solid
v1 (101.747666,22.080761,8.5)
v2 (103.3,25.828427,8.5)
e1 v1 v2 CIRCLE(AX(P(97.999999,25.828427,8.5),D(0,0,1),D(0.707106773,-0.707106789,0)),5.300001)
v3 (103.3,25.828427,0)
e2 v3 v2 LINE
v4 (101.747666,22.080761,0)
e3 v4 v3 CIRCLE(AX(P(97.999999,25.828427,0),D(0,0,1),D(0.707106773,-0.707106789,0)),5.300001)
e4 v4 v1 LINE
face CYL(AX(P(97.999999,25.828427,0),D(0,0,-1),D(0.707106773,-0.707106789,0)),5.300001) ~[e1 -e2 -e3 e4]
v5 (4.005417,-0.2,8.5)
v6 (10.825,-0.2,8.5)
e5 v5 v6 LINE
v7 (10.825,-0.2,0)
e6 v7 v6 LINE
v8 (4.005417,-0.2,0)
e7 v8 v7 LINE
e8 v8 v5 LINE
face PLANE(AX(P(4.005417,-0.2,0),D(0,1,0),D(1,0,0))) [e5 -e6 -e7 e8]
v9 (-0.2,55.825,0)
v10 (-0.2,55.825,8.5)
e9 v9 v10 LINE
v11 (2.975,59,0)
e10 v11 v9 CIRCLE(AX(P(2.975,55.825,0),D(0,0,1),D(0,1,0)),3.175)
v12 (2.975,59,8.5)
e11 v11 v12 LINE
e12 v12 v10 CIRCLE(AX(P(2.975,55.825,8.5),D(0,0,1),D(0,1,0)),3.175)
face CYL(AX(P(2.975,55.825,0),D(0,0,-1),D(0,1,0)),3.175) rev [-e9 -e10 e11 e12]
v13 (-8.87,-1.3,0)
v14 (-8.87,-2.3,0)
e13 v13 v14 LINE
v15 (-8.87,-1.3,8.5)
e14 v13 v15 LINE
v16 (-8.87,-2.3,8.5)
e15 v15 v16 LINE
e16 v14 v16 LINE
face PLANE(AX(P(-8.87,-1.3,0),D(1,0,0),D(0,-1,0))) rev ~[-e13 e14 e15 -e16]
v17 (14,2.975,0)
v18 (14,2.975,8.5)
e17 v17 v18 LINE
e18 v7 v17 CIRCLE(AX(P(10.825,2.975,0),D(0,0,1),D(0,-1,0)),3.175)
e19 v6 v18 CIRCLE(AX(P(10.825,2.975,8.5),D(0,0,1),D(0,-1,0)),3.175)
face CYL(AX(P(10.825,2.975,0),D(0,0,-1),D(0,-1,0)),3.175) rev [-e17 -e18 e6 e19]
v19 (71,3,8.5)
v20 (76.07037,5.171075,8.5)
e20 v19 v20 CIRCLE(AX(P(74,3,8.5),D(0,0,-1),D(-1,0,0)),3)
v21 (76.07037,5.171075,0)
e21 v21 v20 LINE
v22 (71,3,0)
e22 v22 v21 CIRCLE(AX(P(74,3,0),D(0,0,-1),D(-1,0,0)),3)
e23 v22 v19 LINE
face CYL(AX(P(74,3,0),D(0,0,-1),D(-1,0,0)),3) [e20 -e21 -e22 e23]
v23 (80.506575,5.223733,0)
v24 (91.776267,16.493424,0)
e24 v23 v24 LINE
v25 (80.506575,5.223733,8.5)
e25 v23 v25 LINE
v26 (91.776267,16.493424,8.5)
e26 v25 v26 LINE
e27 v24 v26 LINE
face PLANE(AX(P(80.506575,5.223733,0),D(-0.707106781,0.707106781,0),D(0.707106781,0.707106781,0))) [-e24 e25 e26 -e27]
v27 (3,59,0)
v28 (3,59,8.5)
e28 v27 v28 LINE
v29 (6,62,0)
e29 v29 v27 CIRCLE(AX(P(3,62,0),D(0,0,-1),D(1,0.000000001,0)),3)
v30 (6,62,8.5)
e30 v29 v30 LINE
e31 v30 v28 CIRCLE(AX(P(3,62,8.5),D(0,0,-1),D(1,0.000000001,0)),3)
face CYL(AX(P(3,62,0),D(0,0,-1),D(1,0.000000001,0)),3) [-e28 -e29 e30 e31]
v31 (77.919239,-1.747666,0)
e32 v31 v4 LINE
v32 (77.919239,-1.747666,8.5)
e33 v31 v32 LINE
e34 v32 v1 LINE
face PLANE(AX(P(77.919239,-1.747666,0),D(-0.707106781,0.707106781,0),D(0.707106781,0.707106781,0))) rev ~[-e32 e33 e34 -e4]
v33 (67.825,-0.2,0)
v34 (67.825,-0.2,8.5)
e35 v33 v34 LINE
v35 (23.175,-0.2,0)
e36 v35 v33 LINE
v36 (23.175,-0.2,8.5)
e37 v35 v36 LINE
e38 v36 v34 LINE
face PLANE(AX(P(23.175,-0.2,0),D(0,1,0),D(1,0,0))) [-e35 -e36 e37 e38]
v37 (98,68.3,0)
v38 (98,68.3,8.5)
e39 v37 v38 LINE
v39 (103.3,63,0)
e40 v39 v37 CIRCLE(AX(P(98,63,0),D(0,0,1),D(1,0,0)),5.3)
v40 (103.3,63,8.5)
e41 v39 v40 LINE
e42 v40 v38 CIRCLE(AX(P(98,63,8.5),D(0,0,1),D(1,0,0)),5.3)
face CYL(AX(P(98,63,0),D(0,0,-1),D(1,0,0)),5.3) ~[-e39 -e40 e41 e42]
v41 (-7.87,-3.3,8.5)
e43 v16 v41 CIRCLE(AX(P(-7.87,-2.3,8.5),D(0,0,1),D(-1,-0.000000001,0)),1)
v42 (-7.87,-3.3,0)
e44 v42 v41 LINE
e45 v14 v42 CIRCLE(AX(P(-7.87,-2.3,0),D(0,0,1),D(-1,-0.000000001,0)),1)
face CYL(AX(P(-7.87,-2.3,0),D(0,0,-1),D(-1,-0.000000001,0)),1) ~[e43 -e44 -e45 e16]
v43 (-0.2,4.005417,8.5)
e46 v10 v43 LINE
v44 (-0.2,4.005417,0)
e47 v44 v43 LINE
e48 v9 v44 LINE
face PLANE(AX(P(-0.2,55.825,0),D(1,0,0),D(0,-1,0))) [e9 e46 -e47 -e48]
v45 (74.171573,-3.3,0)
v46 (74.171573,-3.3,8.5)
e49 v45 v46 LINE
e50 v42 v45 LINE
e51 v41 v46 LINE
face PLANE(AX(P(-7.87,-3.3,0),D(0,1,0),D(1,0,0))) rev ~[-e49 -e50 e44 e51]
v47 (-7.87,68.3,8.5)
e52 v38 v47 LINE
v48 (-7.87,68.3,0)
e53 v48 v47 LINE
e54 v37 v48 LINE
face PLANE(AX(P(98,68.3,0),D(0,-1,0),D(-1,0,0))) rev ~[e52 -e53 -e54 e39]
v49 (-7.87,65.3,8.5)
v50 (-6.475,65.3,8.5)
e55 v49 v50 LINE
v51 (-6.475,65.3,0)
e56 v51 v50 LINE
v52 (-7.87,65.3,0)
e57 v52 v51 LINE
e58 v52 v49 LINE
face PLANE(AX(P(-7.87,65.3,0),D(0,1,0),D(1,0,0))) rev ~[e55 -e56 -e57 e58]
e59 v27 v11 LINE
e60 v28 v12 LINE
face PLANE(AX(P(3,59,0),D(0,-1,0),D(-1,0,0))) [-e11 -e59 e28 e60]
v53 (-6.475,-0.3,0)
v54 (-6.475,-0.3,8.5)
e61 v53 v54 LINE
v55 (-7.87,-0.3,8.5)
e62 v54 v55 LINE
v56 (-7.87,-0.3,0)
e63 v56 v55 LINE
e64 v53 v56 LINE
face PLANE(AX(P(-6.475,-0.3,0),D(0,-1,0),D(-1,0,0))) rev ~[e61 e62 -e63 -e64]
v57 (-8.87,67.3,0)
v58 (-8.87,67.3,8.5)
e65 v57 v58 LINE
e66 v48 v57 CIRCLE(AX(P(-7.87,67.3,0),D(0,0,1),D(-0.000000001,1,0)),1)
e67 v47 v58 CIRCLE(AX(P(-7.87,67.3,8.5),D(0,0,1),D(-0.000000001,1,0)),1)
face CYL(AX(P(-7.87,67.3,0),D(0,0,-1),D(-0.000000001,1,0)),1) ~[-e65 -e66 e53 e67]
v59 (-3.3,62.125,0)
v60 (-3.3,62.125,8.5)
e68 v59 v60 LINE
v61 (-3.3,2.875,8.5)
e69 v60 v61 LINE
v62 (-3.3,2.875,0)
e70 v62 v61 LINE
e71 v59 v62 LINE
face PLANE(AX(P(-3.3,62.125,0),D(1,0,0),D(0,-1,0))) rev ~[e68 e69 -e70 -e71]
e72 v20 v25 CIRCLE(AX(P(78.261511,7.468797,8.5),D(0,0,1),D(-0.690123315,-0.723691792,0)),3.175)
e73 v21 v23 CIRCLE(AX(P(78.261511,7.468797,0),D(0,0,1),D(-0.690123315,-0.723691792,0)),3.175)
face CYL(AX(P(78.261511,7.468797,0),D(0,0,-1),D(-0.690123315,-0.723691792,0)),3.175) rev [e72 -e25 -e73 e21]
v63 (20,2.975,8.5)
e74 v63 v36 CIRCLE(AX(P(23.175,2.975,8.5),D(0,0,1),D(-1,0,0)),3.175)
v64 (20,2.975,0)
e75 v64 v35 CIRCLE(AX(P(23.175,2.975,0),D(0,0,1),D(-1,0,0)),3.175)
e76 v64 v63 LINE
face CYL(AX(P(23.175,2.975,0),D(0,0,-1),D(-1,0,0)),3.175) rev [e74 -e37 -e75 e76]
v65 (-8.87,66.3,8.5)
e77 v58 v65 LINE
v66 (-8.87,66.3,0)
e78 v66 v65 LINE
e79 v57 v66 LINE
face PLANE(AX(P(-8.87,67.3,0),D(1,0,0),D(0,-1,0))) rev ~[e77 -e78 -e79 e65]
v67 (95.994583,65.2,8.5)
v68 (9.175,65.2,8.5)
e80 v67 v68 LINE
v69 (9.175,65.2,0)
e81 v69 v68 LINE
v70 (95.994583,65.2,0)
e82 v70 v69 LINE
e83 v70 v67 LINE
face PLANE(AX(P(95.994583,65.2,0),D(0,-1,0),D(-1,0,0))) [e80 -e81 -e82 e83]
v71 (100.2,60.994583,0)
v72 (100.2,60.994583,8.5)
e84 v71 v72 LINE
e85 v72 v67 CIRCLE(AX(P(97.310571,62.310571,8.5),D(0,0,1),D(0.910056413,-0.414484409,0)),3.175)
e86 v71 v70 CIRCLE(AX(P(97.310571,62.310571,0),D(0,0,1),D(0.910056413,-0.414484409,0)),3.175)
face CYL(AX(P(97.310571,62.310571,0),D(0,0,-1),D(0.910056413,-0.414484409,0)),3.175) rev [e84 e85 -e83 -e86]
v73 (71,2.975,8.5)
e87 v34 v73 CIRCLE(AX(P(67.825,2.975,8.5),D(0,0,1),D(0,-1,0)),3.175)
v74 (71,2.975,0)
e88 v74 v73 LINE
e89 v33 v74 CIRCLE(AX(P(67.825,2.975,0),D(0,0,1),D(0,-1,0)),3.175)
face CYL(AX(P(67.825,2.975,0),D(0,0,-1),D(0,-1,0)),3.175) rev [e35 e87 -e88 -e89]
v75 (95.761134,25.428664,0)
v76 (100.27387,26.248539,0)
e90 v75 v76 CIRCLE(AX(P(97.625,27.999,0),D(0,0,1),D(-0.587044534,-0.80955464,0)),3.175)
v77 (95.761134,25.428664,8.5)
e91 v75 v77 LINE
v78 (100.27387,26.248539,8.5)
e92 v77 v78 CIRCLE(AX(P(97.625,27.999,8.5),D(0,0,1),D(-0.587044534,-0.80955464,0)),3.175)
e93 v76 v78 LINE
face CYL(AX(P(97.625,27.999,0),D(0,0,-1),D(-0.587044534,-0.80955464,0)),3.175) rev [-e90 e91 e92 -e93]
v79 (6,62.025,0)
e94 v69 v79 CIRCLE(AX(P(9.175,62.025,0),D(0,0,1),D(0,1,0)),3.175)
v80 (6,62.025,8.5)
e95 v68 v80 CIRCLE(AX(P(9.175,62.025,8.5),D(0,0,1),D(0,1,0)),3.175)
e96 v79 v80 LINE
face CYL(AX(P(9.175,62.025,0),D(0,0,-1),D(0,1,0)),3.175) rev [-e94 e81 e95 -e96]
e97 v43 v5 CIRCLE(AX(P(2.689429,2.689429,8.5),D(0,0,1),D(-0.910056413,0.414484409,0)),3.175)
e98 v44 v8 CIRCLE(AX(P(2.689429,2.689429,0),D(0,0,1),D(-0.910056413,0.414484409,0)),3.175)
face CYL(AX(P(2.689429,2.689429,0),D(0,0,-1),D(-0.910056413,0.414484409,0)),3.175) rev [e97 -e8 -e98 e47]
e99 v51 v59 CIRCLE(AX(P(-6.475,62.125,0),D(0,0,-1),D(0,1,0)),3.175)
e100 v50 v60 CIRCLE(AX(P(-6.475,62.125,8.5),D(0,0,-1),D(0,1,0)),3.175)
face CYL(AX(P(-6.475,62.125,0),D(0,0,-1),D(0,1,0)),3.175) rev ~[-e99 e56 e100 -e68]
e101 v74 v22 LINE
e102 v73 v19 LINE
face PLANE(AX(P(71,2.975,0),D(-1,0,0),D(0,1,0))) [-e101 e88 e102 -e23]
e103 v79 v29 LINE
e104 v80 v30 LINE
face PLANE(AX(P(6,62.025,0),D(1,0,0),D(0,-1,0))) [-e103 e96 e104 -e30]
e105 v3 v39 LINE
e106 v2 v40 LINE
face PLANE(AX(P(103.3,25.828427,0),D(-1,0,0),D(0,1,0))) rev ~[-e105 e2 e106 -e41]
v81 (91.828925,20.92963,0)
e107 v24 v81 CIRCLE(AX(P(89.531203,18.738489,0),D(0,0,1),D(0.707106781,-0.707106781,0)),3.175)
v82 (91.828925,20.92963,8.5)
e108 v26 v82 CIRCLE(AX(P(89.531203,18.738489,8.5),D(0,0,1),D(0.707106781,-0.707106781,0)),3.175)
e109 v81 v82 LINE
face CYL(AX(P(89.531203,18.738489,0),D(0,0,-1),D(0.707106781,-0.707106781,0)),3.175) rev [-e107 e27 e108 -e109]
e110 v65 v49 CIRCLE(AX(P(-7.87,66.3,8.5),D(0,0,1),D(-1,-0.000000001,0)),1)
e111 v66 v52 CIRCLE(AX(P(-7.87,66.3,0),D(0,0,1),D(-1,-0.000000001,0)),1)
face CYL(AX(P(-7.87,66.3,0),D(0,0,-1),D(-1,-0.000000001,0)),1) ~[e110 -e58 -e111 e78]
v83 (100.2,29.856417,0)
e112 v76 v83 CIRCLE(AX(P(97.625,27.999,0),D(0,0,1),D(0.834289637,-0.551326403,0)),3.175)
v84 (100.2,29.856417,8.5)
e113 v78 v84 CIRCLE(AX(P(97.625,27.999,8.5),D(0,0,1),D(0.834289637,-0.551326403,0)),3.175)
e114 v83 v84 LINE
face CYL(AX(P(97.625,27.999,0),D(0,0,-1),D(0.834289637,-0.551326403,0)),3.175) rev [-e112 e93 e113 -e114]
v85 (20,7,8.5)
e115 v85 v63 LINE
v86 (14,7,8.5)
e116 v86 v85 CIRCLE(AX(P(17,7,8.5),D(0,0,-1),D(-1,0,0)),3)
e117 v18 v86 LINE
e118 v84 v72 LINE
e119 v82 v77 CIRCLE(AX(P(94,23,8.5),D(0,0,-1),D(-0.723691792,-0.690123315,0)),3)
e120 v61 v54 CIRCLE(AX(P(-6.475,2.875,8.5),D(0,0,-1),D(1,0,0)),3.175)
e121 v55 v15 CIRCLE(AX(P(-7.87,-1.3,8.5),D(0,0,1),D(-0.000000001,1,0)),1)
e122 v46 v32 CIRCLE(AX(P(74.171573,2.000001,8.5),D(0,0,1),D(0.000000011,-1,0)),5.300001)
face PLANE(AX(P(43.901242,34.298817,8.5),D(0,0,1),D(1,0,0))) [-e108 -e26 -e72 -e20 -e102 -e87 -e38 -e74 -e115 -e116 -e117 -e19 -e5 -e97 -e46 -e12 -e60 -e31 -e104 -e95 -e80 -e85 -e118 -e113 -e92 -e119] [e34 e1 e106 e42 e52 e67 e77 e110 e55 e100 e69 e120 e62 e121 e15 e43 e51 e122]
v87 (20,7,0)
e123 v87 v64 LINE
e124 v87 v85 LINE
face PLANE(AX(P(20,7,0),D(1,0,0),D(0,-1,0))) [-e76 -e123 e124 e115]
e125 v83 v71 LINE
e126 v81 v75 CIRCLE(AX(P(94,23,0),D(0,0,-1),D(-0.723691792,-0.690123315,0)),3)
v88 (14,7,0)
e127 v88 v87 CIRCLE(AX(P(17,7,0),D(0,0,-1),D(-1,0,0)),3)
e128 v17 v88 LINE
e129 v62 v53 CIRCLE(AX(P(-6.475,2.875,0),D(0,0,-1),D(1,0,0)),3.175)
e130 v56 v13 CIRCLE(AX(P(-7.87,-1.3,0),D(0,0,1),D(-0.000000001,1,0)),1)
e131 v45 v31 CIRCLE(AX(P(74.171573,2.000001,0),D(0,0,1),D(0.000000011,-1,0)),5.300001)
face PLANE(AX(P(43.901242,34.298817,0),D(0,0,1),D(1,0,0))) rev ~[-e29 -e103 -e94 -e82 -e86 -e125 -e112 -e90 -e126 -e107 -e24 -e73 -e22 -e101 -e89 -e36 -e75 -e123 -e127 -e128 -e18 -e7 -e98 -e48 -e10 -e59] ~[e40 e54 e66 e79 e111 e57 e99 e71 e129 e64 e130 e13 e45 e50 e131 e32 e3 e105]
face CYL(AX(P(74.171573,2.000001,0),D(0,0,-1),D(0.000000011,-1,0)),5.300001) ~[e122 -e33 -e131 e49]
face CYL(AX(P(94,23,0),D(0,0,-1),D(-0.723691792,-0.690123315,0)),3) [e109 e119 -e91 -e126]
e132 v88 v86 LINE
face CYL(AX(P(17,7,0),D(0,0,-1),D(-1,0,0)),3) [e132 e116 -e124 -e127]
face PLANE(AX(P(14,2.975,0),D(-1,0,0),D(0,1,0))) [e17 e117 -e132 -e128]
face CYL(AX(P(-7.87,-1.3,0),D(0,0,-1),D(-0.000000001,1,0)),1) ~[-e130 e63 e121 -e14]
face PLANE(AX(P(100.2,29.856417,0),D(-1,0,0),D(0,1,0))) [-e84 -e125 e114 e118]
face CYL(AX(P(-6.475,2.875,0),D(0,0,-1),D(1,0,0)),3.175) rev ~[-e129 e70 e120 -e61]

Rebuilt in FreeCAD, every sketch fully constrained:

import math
import FreeCAD as App
import Part
import Sketcher

V = App.Vector
Q = App.Units.Quantity

doc = App.newDocument("Part")
body = doc.addObject("PartDesign::Body", "Body")

# Sketch on XY plane
sketch1 = body.newObject("Sketcher::SketchObject", "Sketch")
sketch1.AttachmentSupport = (doc.getObject("XY_Plane"), [""])
sketch1.MapMode = "FlatFace"
sketch1.addGeometry([
    Part.LineSegment(V(-8.87, -1.3, 0), V(-8.87, -2.3, 0)),  # 0
    Part.ArcOfCircle(Part.Circle(V(-7.87, -2.3, 0), V(0, 0, 1), 1), math.radians(-180), math.radians(-90)),  # 1
    Part.LineSegment(V(-7.87, -3.3, 0), V(74.172, -3.3, 0)),  # 2
    Part.ArcOfCircle(Part.Circle(V(74.172, 2, 0), V(0, 0, 1), 5.3), math.radians(-90), math.radians(-45)),  # 3
    Part.LineSegment(V(77.919, -1.748, 0), V(101.748, 22.081, 0)),  # 4
    Part.ArcOfCircle(Part.Circle(V(98, 25.828, 0), V(0, 0, 1), 5.3), math.radians(-45), math.radians(0)),  # 5
    Part.LineSegment(V(103.3, 25.828, 0), V(103.3, 63, 0)),  # 6
    Part.ArcOfCircle(Part.Circle(V(98, 63, 0), V(0, 0, 1), 5.3), math.radians(0), math.radians(90)),  # 7
    Part.LineSegment(V(98, 68.3, 0), V(-7.87, 68.3, 0)),  # 8
    Part.ArcOfCircle(Part.Circle(V(-7.87, 67.3, 0), V(0, 0, 1), 1), math.radians(90), math.radians(180)),  # 9
    Part.LineSegment(V(-8.87, 67.3, 0), V(-8.87, 66.3, 0)),  # 10
    Part.ArcOfCircle(Part.Circle(V(-7.87, 66.3, 0), V(0, 0, 1), 1), math.radians(-180), math.radians(-90)),  # 11
    Part.LineSegment(V(-7.87, 65.3, 0), V(-6.475, 65.3, 0)),  # 12
    Part.ArcOfCircle(Part.Circle(V(-6.475, 62.125, 0), V(0, 0, 1), 3.175), math.radians(0), math.radians(90)),  # 13
    Part.LineSegment(V(-3.3, 62.125, 0), V(-3.3, 2.875, 0)),  # 14
    Part.ArcOfCircle(Part.Circle(V(-6.475, 2.875, 0), V(0, 0, 1), 3.175), math.radians(-90), math.radians(0)),  # 15
    Part.LineSegment(V(-6.475, -0.3, 0), V(-7.87, -0.3, 0)),  # 16
    Part.ArcOfCircle(Part.Circle(V(-7.87, -1.3, 0), V(0, 0, 1), 1), math.radians(90), math.radians(180)),  # 17
    Part.LineSegment(V(100.2, 60.995, 0), V(100.2, 29.856, 0)),  # 18
    Part.ArcOfCircle(Part.Circle(V(97.625, 27.999, 0), V(0, 0, 1), 3.175), math.radians(-33), math.radians(36)),  # 19
    Part.ArcOfCircle(Part.Circle(V(97.625, 27.999, 0), V(0, 0, 1), 3.175), math.radians(-126), math.radians(-33)),  # 20
    Part.ArcOfCircle(Part.Circle(V(94, 23, 0), V(0, 0, 1), 3), math.radians(54), math.radians(224)),  # 21
    Part.ArcOfCircle(Part.Circle(V(89.531, 18.738, 0), V(0, 0, 1), 3.175), math.radians(-45), math.radians(44)),  # 22
    Part.LineSegment(V(91.776, 16.493, 0), V(80.507, 5.224, 0)),  # 23
    Part.ArcOfCircle(Part.Circle(V(78.262, 7.469, 0), V(0, 0, 1), 3.175), math.radians(-134), math.radians(-45)),  # 24
    Part.ArcOfCircle(Part.Circle(V(74, 3, 0), V(0, 0, 1), 3), math.radians(46), math.radians(180)),  # 25
    Part.LineSegment(V(71, 3, 0), V(71, 2.975, 0)),  # 26
    Part.ArcOfCircle(Part.Circle(V(67.825, 2.975, 0), V(0, 0, 1), 3.175), math.radians(-90), math.radians(0)),  # 27
    Part.LineSegment(V(67.825, -0.2, 0), V(23.175, -0.2, 0)),  # 28
    Part.ArcOfCircle(Part.Circle(V(23.175, 2.975, 0), V(0, 0, 1), 3.175), math.radians(-180), math.radians(-90)),  # 29
    Part.LineSegment(V(20, 2.975, 0), V(20, 7, 0)),  # 30
    Part.ArcOfCircle(Part.Circle(V(17, 7, 0), V(0, 0, 1), 3), math.radians(0), math.radians(180)),  # 31
    Part.LineSegment(V(14, 7, 0), V(14, 2.975, 0)),  # 32
    Part.ArcOfCircle(Part.Circle(V(10.825, 2.975, 0), V(0, 0, 1), 3.175), math.radians(-90), math.radians(0)),  # 33
    Part.LineSegment(V(10.825, -0.2, 0), V(4.005, -0.2, 0)),  # 34
    Part.ArcOfCircle(Part.Circle(V(2.689, 2.689, 0), V(0, 0, 1), 3.175), math.radians(156), math.radians(294)),  # 35
    Part.LineSegment(V(-0.2, 4.005, 0), V(-0.2, 55.825, 0)),  # 36
    Part.ArcOfCircle(Part.Circle(V(2.975, 55.825, 0), V(0, 0, 1), 3.175), math.radians(90), math.radians(180)),  # 37
    Part.LineSegment(V(2.975, 59, 0), V(3, 59, 0)),  # 38
    Part.ArcOfCircle(Part.Circle(V(3, 62, 0), V(0, 0, 1), 3), math.radians(-90), math.radians(0)),  # 39
    Part.LineSegment(V(6, 62, 0), V(6, 62.025, 0)),  # 40
    Part.ArcOfCircle(Part.Circle(V(9.175, 62.025, 0), V(0, 0, 1), 3.175), math.radians(90), math.radians(180)),  # 41
    Part.LineSegment(V(9.175, 65.2, 0), V(95.995, 65.2, 0)),  # 42
    Part.ArcOfCircle(Part.Circle(V(97.311, 62.311, 0), V(0, 0, 1), 3.175), math.radians(-24), math.radians(114)),  # 43
], False)
sketch1.addConstraint([
    Sketcher.Constraint("Tangent", 0, 2, 1, 1),
    Sketcher.Constraint("Tangent", 1, 2, 2, 1),
    Sketcher.Constraint("Tangent", 2, 2, 3, 1),
    Sketcher.Constraint("Tangent", 3, 2, 4, 1),
    Sketcher.Constraint("Tangent", 4, 2, 5, 1),
    Sketcher.Constraint("Tangent", 5, 2, 6, 1),
    Sketcher.Constraint("Tangent", 6, 2, 7, 1),
    Sketcher.Constraint("Tangent", 7, 2, 8, 1),
    Sketcher.Constraint("Tangent", 8, 2, 9, 1),
    Sketcher.Constraint("Tangent", 9, 2, 10, 1),
    Sketcher.Constraint("Tangent", 10, 2, 11, 1),
    Sketcher.Constraint("Tangent", 11, 2, 12, 1),
    Sketcher.Constraint("Tangent", 12, 2, 13, 2),
    Sketcher.Constraint("Tangent", 13, 1, 14, 1),
    Sketcher.Constraint("Tangent", 14, 2, 15, 2),
    Sketcher.Constraint("Tangent", 15, 1, 16, 1),
    Sketcher.Constraint("Tangent", 16, 2, 17, 1),
    Sketcher.Constraint("Tangent", 17, 2, 0, 1),
    Sketcher.Constraint("Coincident", 18, 2, 19, 2),
    Sketcher.Constraint("Tangent", 19, 1, 20, 2),
    Sketcher.Constraint("Tangent", 20, 1, 21, 1),
    Sketcher.Constraint("Tangent", 21, 2, 22, 2),
    Sketcher.Constraint("Tangent", 22, 1, 23, 1),
    Sketcher.Constraint("Tangent", 23, 2, 24, 2),
    Sketcher.Constraint("Tangent", 24, 1, 25, 1),
    Sketcher.Constraint("Tangent", 25, 2, 26, 1),
    Sketcher.Constraint("Tangent", 26, 2, 27, 2),
    Sketcher.Constraint("Tangent", 27, 1, 28, 1),
    Sketcher.Constraint("Tangent", 28, 2, 29, 2),
    Sketcher.Constraint("Tangent", 29, 1, 30, 1),
    Sketcher.Constraint("Tangent", 30, 2, 31, 1),
    Sketcher.Constraint("Tangent", 31, 2, 32, 1),
    Sketcher.Constraint("Tangent", 32, 2, 33, 2),
    Sketcher.Constraint("Tangent", 33, 1, 34, 1),
    Sketcher.Constraint("Coincident", 34, 2, 35, 2),
    Sketcher.Constraint("Coincident", 35, 1, 36, 1),
    Sketcher.Constraint("Tangent", 36, 2, 37, 2),
    Sketcher.Constraint("Tangent", 37, 1, 38, 1),
    Sketcher.Constraint("Tangent", 38, 2, 39, 1),
    Sketcher.Constraint("Tangent", 39, 2, 40, 1),
    Sketcher.Constraint("Tangent", 40, 2, 41, 2),
    Sketcher.Constraint("Tangent", 41, 1, 42, 1),
    Sketcher.Constraint("Coincident", 42, 2, 43, 2),
    Sketcher.Constraint("Coincident", 43, 1, 18, 1),
    Sketcher.Constraint("Vertical", 0),
    Sketcher.Constraint("Horizontal", 2),
    Sketcher.Constraint("Vertical", 6),
    Sketcher.Constraint("Horizontal", 8),
    Sketcher.Constraint("Vertical", 10),
    Sketcher.Constraint("Horizontal", 12),
    Sketcher.Constraint("Vertical", 14),
    Sketcher.Constraint("Horizontal", 16),
    Sketcher.Constraint("Vertical", 18),
    Sketcher.Constraint("Vertical", 26),
    Sketcher.Constraint("Horizontal", 28),
    Sketcher.Constraint("Vertical", 30),
    Sketcher.Constraint("Vertical", 32),
    Sketcher.Constraint("Horizontal", 34),
    Sketcher.Constraint("Vertical", 36),
    Sketcher.Constraint("Horizontal", 38),
    Sketcher.Constraint("Vertical", 40),
    Sketcher.Constraint("Horizontal", 42),
    Sketcher.Constraint("Equal", 3, 5),
    Sketcher.Constraint("Equal", 5, 7),
    Sketcher.Constraint("Equal", 1, 9),
    Sketcher.Constraint("Equal", 9, 11),
    Sketcher.Constraint("Equal", 13, 15),
    Sketcher.Constraint("Equal", 11, 17),
    Sketcher.Constraint("Equal", 15, 19),
    Sketcher.Constraint("Equal", 19, 20),
    Sketcher.Constraint("Equal", 20, 22),
    Sketcher.Constraint("Equal", 22, 24),
    Sketcher.Constraint("Equal", 21, 25),
    Sketcher.Constraint("Equal", 24, 27),
    Sketcher.Constraint("Equal", 27, 29),
    Sketcher.Constraint("Equal", 25, 31),
    Sketcher.Constraint("Equal", 29, 33),
    Sketcher.Constraint("Equal", 33, 35),
    Sketcher.Constraint("Equal", 35, 37),
    Sketcher.Constraint("Equal", 31, 39),
    Sketcher.Constraint("Equal", 37, 41),
    Sketcher.Constraint("Equal", 41, 43),
    Sketcher.Constraint("Parallel", 4, 23),
    Sketcher.Constraint("Horizontal", 29, 3, 33, 3),
    Sketcher.Constraint("Vertical", 1, 3, 9, 3),
    Sketcher.Constraint("Equal", 0, 10),
    Sketcher.Constraint("Equal", 38, 26),
    Sketcher.Constraint("Equal", 26, 40),
    Sketcher.Constraint("Radius", 1, Q("1 mm")),
    Sketcher.Constraint("Radius", 21, Q("3 mm")),
    Sketcher.Constraint("Radius", 3, Q("5.300001 mm")),
    Sketcher.Constraint("DistanceY", 0, 2, 0, 1, Q("1 mm")),
    Sketcher.Constraint("Angle", 4, Q("45 deg")),
    Sketcher.Constraint("DistanceY", -1, 1, 3, 3, Q("2.000001 mm")),
    Sketcher.Constraint("DistanceX", -1, 1, 5, 3, Q("97.999999 mm")),
    Sketcher.Constraint("DistanceY", -1, 1, 7, 3, Q("63 mm")),
    Sketcher.Constraint("DistanceX", -1, 1, 21, 3, Q("94 mm")),
    Sketcher.Constraint("DistanceY", -1, 1, 21, 3, Q("23 mm")),
    Sketcher.Constraint("DistanceX", -1, 1, 25, 3, Q("74 mm")),
    Sketcher.Constraint("DistanceY", -1, 1, 25, 3, Q("3 mm")),
    Sketcher.Constraint("DistanceX", -1, 1, 31, 3, Q("17 mm")),
    Sketcher.Constraint("DistanceY", -1, 1, 31, 3, Q("7 mm")),
    Sketcher.Constraint("DistanceX", -1, 1, 39, 3, Q("3 mm")),
    Sketcher.Constraint("DistanceY", -1, 1, 39, 3, Q("62 mm")),
    Sketcher.Constraint("Radius", 13, Q("3.175 mm")),
    Sketcher.Constraint("DistanceX", 8, 2, 8, 1, Q("105.87 mm")),
    Sketcher.Constraint("DistanceX", 13, 1, -1, 1, Q("3.3 mm")),
    Sketcher.Constraint("DistanceX", -1, 1, 18, 2, Q("100.2 mm")),
    Sketcher.Constraint("DistanceY", 27, 1, -1, 1, Q("0.2 mm")),
    Sketcher.Constraint("DistanceX", -1, 1, 19, 3, Q("97.625 mm")),
    Sketcher.Constraint("Distance", 23, Q("15.937751 mm")),
    Sketcher.Constraint("DistanceX", 2, 1, 2, 2, Q("82.041573 mm")),
    Sketcher.Constraint("DistanceX", 34, 2, 34, 1, Q("6.819583 mm")),
    Sketcher.Constraint("DistanceX", 42, 1, 42, 2, Q("86.819583 mm")),
    Sketcher.Constraint("DistanceY", 18, 2, 18, 1, Q("31.138165 mm")),
    Sketcher.Constraint("DistanceY", 36, 1, 36, 2, Q("51.819583 mm")),
    Sketcher.Constraint("DistanceX", -1, 1, 19, 1, Q("100.27387 mm")),
])
pad1 = body.newObject("PartDesign::Pad", "Pad")
pad1.Profile = sketch1
pad1.Length = 8.5

doc.recompute()
